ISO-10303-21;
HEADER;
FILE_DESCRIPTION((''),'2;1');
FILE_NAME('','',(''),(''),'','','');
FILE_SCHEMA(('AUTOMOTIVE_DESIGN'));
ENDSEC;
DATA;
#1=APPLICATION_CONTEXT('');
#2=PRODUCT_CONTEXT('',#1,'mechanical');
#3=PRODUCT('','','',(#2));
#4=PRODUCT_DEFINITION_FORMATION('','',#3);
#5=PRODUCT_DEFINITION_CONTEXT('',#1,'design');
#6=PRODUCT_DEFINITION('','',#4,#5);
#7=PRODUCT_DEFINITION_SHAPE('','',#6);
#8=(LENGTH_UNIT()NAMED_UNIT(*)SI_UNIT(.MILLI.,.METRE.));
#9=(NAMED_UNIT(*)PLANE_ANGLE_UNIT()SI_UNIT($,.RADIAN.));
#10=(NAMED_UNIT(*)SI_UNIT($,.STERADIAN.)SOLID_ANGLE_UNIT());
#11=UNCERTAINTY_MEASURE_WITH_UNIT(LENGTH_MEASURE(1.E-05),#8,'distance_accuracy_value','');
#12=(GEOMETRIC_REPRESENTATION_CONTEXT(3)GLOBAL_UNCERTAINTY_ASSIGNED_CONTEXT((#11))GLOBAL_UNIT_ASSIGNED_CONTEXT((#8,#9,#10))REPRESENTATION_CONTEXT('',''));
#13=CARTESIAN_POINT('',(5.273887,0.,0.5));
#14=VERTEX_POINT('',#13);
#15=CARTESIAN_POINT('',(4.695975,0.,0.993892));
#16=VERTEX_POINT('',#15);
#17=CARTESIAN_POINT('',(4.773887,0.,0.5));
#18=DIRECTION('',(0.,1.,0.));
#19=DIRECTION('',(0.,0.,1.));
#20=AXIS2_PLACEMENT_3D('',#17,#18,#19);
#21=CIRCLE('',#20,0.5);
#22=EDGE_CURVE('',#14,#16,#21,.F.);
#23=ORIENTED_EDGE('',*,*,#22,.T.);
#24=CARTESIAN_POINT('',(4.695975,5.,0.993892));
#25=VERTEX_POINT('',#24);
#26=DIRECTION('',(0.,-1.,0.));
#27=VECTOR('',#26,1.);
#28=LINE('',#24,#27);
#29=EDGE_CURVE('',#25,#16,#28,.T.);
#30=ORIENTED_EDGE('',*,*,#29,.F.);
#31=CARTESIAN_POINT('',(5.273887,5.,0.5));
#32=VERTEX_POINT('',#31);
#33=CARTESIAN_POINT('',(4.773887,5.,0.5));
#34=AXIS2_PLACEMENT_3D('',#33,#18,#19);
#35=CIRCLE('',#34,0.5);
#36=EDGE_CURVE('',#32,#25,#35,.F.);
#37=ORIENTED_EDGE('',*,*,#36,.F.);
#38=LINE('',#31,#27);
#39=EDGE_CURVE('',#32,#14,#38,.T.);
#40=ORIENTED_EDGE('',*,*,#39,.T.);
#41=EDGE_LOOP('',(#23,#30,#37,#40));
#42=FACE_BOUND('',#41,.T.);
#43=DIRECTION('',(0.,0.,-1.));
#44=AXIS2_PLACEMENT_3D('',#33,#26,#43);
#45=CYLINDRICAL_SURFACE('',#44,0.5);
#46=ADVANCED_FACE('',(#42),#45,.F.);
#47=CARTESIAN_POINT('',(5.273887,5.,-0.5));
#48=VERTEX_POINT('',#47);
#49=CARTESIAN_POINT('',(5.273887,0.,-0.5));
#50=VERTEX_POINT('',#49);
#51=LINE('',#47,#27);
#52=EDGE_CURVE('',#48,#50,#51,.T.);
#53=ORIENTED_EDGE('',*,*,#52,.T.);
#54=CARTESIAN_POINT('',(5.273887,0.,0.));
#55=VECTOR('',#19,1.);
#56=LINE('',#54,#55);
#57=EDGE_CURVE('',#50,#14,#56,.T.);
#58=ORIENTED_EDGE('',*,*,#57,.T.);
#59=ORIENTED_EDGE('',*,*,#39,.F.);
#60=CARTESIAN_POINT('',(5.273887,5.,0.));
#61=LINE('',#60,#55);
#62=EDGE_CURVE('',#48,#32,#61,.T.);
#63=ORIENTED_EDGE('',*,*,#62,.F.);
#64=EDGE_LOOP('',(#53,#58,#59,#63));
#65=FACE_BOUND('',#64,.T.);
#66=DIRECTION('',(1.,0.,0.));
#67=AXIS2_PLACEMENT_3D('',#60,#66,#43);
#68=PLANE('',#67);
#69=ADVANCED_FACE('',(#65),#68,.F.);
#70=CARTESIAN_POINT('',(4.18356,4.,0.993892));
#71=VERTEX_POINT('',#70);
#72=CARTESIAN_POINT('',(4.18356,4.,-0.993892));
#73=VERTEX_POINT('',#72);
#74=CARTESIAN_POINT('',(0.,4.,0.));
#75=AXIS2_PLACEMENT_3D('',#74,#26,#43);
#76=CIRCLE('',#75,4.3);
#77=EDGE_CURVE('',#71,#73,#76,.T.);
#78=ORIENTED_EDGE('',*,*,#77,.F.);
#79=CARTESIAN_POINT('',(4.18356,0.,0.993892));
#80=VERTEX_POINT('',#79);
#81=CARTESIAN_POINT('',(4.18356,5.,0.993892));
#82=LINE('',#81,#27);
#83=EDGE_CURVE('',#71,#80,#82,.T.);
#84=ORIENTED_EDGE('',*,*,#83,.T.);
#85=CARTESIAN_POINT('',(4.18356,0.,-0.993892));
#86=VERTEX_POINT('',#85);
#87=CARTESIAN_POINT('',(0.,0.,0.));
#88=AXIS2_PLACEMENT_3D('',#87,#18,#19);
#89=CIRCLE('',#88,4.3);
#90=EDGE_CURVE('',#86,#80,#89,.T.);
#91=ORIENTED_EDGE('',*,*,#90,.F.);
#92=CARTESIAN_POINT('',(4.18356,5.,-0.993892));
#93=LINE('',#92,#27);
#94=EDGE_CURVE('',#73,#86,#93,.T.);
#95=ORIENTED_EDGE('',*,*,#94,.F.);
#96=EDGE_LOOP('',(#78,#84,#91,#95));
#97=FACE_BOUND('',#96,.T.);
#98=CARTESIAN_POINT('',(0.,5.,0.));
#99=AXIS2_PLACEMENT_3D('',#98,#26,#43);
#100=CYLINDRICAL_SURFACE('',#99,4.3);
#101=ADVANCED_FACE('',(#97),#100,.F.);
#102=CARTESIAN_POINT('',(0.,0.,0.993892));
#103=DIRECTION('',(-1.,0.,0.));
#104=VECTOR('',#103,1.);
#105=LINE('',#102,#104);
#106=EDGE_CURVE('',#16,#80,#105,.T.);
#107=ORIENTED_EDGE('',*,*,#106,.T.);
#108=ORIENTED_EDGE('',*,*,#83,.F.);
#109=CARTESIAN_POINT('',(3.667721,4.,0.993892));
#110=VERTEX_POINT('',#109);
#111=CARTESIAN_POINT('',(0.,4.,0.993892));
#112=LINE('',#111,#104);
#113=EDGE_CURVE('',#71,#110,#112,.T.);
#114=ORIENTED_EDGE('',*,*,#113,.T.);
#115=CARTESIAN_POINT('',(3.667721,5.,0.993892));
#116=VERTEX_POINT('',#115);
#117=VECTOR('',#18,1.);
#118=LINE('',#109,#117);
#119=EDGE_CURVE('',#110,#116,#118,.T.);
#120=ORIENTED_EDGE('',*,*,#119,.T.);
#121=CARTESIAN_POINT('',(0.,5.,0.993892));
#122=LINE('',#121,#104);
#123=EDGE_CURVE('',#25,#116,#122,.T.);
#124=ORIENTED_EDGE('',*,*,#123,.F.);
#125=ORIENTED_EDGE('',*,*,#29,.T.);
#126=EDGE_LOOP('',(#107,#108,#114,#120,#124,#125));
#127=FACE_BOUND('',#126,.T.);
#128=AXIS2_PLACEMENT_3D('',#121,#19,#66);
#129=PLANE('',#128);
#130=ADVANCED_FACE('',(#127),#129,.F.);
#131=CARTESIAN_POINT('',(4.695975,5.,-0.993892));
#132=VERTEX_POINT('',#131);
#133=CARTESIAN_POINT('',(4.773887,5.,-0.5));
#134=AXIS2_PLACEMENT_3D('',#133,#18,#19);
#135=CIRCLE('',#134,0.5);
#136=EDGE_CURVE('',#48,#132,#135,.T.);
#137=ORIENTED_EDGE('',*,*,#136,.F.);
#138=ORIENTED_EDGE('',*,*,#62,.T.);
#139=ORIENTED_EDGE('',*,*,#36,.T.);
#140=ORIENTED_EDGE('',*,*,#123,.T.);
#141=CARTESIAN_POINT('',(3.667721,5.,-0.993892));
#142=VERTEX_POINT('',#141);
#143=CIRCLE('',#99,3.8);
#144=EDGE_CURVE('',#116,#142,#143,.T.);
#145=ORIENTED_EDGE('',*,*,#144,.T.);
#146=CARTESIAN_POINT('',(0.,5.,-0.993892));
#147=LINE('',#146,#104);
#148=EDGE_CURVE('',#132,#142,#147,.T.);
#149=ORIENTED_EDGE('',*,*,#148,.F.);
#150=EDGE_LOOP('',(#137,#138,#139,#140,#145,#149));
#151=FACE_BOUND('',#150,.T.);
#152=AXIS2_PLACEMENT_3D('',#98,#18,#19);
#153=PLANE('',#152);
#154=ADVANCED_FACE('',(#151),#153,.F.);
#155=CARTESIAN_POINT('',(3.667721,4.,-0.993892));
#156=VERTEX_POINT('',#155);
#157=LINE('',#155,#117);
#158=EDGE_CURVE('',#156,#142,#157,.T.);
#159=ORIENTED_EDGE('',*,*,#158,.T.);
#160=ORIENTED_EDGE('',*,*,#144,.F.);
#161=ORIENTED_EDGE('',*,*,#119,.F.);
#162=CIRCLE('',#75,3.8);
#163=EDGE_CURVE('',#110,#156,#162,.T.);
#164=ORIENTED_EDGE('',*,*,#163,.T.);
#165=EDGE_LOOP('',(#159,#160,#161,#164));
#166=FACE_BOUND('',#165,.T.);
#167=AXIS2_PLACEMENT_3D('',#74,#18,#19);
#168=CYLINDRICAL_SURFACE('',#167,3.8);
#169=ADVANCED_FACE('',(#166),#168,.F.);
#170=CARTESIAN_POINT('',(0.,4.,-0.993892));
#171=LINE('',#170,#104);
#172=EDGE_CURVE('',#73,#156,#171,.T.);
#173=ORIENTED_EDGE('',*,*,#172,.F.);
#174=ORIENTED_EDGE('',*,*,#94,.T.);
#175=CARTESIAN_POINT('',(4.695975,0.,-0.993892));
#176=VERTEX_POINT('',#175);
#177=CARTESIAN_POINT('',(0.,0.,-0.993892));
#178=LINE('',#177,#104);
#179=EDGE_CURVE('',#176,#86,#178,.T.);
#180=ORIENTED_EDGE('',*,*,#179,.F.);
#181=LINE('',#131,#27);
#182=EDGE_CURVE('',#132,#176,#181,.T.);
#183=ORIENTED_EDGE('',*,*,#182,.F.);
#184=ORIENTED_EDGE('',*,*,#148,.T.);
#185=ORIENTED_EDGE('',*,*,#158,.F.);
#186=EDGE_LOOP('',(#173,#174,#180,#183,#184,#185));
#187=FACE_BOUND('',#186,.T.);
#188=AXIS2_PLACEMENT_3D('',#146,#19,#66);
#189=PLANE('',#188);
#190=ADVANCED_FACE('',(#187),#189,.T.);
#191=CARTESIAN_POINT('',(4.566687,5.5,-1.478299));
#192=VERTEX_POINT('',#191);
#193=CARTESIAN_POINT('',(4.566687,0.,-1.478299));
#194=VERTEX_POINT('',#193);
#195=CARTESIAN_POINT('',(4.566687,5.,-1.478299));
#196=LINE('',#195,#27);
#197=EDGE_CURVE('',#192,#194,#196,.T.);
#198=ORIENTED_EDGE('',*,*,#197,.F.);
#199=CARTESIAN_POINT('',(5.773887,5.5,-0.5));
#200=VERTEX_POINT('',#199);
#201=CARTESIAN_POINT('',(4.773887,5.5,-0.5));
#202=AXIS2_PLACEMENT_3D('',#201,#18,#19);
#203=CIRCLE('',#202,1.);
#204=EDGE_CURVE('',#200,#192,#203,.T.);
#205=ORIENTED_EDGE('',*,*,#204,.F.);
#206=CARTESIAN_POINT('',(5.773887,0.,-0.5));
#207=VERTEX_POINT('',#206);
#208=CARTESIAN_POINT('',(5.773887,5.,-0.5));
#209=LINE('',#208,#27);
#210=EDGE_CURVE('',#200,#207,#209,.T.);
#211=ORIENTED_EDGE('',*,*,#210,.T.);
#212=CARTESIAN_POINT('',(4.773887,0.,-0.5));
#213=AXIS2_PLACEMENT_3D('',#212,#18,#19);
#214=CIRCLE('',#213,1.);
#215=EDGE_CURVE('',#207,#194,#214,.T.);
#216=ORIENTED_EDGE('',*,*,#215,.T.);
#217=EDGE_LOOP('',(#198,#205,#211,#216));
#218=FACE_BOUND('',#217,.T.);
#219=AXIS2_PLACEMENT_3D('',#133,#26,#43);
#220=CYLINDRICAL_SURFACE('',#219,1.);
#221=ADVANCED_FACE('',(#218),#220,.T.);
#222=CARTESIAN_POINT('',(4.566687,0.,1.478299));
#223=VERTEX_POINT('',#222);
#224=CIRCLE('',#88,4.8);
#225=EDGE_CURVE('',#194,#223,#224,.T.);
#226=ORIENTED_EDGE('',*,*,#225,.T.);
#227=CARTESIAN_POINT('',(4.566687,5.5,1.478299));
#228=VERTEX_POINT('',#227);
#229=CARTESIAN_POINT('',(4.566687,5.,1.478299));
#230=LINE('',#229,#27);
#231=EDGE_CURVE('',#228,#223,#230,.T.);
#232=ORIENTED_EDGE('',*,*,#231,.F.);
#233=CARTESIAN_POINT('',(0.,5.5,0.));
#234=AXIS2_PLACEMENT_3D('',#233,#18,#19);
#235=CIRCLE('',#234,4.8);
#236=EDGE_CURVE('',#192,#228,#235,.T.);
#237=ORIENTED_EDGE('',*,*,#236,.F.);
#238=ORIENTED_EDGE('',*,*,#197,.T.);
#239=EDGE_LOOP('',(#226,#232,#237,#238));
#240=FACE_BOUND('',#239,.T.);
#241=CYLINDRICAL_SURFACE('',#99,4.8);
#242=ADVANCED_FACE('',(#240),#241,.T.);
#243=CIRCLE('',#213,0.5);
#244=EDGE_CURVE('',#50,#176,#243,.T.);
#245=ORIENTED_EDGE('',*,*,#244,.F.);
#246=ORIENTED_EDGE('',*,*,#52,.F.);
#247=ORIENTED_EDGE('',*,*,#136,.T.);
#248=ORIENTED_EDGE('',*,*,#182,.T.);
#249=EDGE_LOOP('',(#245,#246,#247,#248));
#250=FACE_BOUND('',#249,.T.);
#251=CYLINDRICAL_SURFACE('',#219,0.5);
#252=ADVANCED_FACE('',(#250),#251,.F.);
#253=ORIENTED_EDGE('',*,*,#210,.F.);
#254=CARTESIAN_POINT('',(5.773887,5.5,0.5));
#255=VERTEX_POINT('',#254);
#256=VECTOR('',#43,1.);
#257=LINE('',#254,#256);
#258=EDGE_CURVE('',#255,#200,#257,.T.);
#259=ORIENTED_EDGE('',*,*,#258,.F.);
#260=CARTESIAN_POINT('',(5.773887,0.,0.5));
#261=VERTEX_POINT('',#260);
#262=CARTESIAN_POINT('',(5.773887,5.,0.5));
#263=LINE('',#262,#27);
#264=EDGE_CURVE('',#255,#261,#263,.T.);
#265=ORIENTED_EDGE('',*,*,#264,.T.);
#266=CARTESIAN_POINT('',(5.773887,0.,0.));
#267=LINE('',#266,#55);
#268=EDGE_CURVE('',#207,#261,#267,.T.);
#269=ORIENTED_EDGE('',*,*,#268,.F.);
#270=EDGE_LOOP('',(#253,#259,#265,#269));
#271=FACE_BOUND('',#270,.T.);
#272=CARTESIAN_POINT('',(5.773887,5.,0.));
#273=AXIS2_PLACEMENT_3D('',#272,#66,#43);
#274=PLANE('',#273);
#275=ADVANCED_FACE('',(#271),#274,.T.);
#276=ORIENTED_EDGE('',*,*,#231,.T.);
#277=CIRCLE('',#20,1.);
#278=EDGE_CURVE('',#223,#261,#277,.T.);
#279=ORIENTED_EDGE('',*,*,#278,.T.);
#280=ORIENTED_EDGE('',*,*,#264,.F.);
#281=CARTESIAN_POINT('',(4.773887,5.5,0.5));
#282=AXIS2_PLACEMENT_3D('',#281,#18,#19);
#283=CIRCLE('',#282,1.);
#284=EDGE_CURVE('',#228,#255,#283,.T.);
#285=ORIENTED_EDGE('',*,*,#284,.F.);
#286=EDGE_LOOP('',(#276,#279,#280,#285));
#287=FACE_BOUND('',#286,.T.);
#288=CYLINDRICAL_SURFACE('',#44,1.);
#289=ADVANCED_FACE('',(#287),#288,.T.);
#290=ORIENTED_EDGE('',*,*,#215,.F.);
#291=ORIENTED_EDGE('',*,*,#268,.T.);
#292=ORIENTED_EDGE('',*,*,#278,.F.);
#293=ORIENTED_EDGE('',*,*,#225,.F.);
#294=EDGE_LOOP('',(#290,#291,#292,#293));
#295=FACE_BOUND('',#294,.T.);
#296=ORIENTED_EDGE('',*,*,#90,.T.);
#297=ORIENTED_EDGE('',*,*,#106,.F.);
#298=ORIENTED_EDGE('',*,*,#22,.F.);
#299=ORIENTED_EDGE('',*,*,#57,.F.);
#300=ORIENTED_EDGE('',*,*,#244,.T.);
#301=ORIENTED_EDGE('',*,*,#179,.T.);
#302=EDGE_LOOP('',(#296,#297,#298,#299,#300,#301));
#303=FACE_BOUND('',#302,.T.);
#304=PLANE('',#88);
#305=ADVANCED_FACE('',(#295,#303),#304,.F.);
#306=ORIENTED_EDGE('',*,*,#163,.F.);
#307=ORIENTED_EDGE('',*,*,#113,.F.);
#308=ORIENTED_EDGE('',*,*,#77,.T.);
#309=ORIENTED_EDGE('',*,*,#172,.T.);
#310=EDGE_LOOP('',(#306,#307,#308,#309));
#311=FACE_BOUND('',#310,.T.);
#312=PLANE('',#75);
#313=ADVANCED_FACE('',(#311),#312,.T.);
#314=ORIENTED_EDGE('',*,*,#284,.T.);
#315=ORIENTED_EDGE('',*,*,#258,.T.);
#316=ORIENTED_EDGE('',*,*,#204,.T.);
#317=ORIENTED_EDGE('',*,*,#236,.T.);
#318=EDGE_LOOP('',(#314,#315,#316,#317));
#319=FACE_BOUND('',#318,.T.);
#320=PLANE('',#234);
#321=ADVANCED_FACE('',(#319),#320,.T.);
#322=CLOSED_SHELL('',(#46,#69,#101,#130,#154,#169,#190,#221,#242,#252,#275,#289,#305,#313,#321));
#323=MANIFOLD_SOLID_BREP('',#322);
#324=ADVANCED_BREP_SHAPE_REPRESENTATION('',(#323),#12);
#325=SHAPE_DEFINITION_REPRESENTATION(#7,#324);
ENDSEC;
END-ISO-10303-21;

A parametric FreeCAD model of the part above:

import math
import FreeCAD as App
import Part
import Sketcher
from FreeCAD import Vector

doc = App.newDocument("Part")
body = doc.addObject("PartDesign::Body", "Body")

sketch1 = body.newObject("Sketcher::SketchObject", "Sketch")
sketch1.AttachmentSupport = (doc.getObject("XZ_Plane"), [""])
sketch1.MapMode = "FlatFace"
sketch1.addGeometry(Part.ArcOfCircle(Part.Circle(Vector(0, 0, 0), Vector(0, 0, 1), 4.8), math.radians(18), math.radians(342)), False)
sketch1.addGeometry(Part.ArcOfCircle(Part.Circle(Vector(4.8, 0.5, 0), Vector(0, 0, 1), 1), math.radians(0), math.radians(102)), False)
sketch1.addGeometry(Part.LineSegment(Vector(5.8, 0.5, 0), Vector(5.8, -0.5, 0)), False)
sketch1.addGeometry(Part.ArcOfCircle(Part.Circle(Vector(4.8, -0.5, 0), Vector(0, 0, 1), 1), math.radians(-102), math.radians(0)), False)
sketch1.addGeometry(Part.LineSegment(Vector(5.3, -0.5, 0), Vector(5.3, 0.5, 0)), False)
sketch1.addGeometry(Part.ArcOfCircle(Part.Circle(Vector(4.8, 0.5, 0), Vector(0, 0, 1), 0.5), math.radians(0), math.radians(99)), False)
sketch1.addGeometry(Part.LineSegment(Vector(4.7, 1, 0), Vector(4.2, 1, 0)), False)
sketch1.addGeometry(Part.ArcOfCircle(Part.Circle(Vector(0, 0, 0), Vector(0, 0, 1), 4.3), math.radians(13), math.radians(347)), False)
sketch1.addGeometry(Part.LineSegment(Vector(4.2, -1, 0), Vector(4.7, -1, 0)), False)
sketch1.addGeometry(Part.ArcOfCircle(Part.Circle(Vector(4.8, -0.5, 0), Vector(0, 0, 1), 0.5), math.radians(-99), math.radians(0)), False)
sketch1.addConstraint(Sketcher.Constraint("Coincident", 0, 1, 1, 2))
sketch1.addConstraint(Sketcher.Constraint("Tangent", 1, 1, 2, 1))
sketch1.addConstraint(Sketcher.Constraint("Tangent", 2, 2, 3, 2))
sketch1.addConstraint(Sketcher.Constraint("Coincident", 3, 1, 0, 2))
sketch1.addConstraint(Sketcher.Constraint("Tangent", 4, 2, 5, 1))
sketch1.addConstraint(Sketcher.Constraint("Coincident", 5, 2, 6, 1))
sketch1.addConstraint(Sketcher.Constraint("Coincident", 6, 2, 7, 1))
sketch1.addConstraint(Sketcher.Constraint("Coincident", 7, 2, 8, 1))
sketch1.addConstraint(Sketcher.Constraint("Coincident", 8, 2, 9, 1))
sketch1.addConstraint(Sketcher.Constraint("Tangent", 9, 2, 4, 1))
sketch1.addConstraint(Sketcher.Constraint("Vertical", 2))
sketch1.addConstraint(Sketcher.Constraint("Vertical", 4))
sketch1.addConstraint(Sketcher.Constraint("Horizontal", 6))
sketch1.addConstraint(Sketcher.Constraint("Horizontal", 8))
sketch1.addConstraint(Sketcher.Constraint("Coincident", 0, 3, -1, 1))
sketch1.addConstraint(Sketcher.Constraint("Coincident", 7, 3, -1, 1))
sketch1.addConstraint(Sketcher.Constraint("Coincident", 5, 3, 1, 3))
sketch1.addConstraint(Sketcher.Constraint("Coincident", 9, 3, 3, 3))
sketch1.addConstraint(Sketcher.Constraint("Equal", 1, 3))
sketch1.addConstraint(Sketcher.Constraint("Symmetric", 5, 2, 8, 2, -1))
sketch1.addConstraint(Sketcher.Constraint("Radius", 1, 1.0))
sketch1.addConstraint(Sketcher.Constraint("Radius", 0, 4.8))
sketch1.addConstraint(Sketcher.Constraint("Radius", 5, 0.5))
sketch1.addConstraint(Sketcher.Constraint("Radius", 7, 4.3))
sketch1.addConstraint(Sketcher.Constraint("DistanceY", 2, 2, 2, 1, 1.0))
sketch1.addConstraint(Sketcher.Constraint("DistanceY", -1, 1, 0, 1, 1.478299))
sketch1.addConstraint(Sketcher.Constraint("DistanceX", 6, 2, 6, 1, 0.512414))
pad1 = body.newObject("PartDesign::Pad", "Pad")
pad1.Profile = sketch1
pad1.Length = 5
pad1.Reversed = True

sketch2 = body.newObject("Sketcher::SketchObject", "Sketch001")
sketch2.AttachmentSupport = (doc.getObject("XZ_Plane"), [""])
sketch2.MapMode = "FlatFace"
sketch2.AttachmentOffset = App.Placement(Vector(0, 0, -5), App.Rotation())
sketch2.addGeometry(Part.LineSegment(Vector(5.8, 0.5, 0), Vector(5.8, -0.5, 0)), False)
sketch2.addGeometry(Part.ArcOfCircle(Part.Circle(Vector(4.8, -0.5, 0), Vector(0, 0, 1), 1), math.radians(-102), math.radians(0)), False)
sketch2.addGeometry(Part.ArcOfCircle(Part.Circle(Vector(0, 0, 0), Vector(0, 0, 1), 4.8), math.radians(18), math.radians(342)), False)
sketch2.addGeometry(Part.ArcOfCircle(Part.Circle(Vector(4.8, 0.5, 0), Vector(0, 0, 1), 1), math.radians(0), math.radians(102)), False)
sketch2.addConstraint(Sketcher.Constraint("Tangent", 0, 2, 1, 2))
sketch2.addConstraint(Sketcher.Constraint("Coincident", 1, 1, 2, 2))
sketch2.addConstraint(Sketcher.Constraint("Coincident", 2, 1, 3, 2))
sketch2.addConstraint(Sketcher.Constraint("Tangent", 3, 1, 0, 1))
sketch2.addConstraint(Sketcher.Constraint("Vertical", 0))
sketch2.addConstraint(Sketcher.Constraint("Coincident", 2, 3, -1, 1))
sketch2.addConstraint(Sketcher.Constraint("Equal", 1, 3))
sketch2.addConstraint(Sketcher.Constraint("Vertical", 1, 1, 2, 1))
sketch2.addConstraint(Sketcher.Constraint("Radius", 1, 1.0))
sketch2.addConstraint(Sketcher.Constraint("Radius", 2, 4.8))
sketch2.addConstraint(Sketcher.Constraint("DistanceY", 0, 2, 0, 1, 1.0))
sketch2.addConstraint(Sketcher.Constraint("DistanceY", 1, 1, -1, 1, 1.478299))
pad2 = body.newObject("PartDesign::Pad", "Pad001")
pad2.Profile = sketch2
pad2.Length = 0.5
pad2.Reversed = True

sketch3 = body.newObject("Sketcher::SketchObject", "Sketch002")
sketch3.AttachmentSupport = (doc.getObject("XZ_Plane"), [""])
sketch3.MapMode = "FlatFace"
sketch3.AttachmentOffset = App.Placement(Vector(0, 0, -5), App.Rotation())
sketch3.addGeometry(Part.LineSegment(Vector(3.7, 1, 0), Vector(4.2, 1, 0)), False)
sketch3.addGeometry(Part.ArcOfCircle(Part.Circle(Vector(0, 0, 0), Vector(0, 0, 1), 4.3), math.radians(13), math.radians(347)), False)
sketch3.addGeometry(Part.LineSegment(Vector(4.2, -1, 0), Vector(3.7, -1, 0)), False)
sketch3.addGeometry(Part.ArcOfCircle(Part.Circle(Vector(0, 0, 0), Vector(0, 0, 1), 3.8), math.radians(15), math.radians(345)), False)
sketch3.addConstraint(Sketcher.Constraint("Coincident", 0, 2, 1, 1))
sketch3.addConstraint(Sketcher.Constraint("Coincident", 1, 2, 2, 1))
sketch3.addConstraint(Sketcher.Constraint("Coincident", 2, 2, 3, 2))
sketch3.addConstraint(Sketcher.Constraint("Coincident", 3, 1, 0, 1))
sketch3.addConstraint(Sketcher.Constraint("Horizontal", 0))
sketch3.addConstraint(Sketcher.Constraint("Horizontal", 2))
sketch3.addConstraint(Sketcher.Constraint("Coincident", 1, 3, -1, 1))
sketch3.addConstraint(Sketcher.Constraint("Coincident", 3, 3, -1, 1))
sketch3.addConstraint(Sketcher.Constraint("Vertical", 0, 2, 1, 2))
sketch3.addConstraint(Sketcher.Constraint("Radius", 1, 4.3))
sketch3.addConstraint(Sketcher.Constraint("Radius", 3, 3.8))
sketch3.addConstraint(Sketcher.Constraint("DistanceX", 0, 1, 0, 2, 0.515839))
pad3 = body.newObject("PartDesign::Pad", "Pad002")
pad3.Profile = sketch3
pad3.Length = 1

doc.recompute()
